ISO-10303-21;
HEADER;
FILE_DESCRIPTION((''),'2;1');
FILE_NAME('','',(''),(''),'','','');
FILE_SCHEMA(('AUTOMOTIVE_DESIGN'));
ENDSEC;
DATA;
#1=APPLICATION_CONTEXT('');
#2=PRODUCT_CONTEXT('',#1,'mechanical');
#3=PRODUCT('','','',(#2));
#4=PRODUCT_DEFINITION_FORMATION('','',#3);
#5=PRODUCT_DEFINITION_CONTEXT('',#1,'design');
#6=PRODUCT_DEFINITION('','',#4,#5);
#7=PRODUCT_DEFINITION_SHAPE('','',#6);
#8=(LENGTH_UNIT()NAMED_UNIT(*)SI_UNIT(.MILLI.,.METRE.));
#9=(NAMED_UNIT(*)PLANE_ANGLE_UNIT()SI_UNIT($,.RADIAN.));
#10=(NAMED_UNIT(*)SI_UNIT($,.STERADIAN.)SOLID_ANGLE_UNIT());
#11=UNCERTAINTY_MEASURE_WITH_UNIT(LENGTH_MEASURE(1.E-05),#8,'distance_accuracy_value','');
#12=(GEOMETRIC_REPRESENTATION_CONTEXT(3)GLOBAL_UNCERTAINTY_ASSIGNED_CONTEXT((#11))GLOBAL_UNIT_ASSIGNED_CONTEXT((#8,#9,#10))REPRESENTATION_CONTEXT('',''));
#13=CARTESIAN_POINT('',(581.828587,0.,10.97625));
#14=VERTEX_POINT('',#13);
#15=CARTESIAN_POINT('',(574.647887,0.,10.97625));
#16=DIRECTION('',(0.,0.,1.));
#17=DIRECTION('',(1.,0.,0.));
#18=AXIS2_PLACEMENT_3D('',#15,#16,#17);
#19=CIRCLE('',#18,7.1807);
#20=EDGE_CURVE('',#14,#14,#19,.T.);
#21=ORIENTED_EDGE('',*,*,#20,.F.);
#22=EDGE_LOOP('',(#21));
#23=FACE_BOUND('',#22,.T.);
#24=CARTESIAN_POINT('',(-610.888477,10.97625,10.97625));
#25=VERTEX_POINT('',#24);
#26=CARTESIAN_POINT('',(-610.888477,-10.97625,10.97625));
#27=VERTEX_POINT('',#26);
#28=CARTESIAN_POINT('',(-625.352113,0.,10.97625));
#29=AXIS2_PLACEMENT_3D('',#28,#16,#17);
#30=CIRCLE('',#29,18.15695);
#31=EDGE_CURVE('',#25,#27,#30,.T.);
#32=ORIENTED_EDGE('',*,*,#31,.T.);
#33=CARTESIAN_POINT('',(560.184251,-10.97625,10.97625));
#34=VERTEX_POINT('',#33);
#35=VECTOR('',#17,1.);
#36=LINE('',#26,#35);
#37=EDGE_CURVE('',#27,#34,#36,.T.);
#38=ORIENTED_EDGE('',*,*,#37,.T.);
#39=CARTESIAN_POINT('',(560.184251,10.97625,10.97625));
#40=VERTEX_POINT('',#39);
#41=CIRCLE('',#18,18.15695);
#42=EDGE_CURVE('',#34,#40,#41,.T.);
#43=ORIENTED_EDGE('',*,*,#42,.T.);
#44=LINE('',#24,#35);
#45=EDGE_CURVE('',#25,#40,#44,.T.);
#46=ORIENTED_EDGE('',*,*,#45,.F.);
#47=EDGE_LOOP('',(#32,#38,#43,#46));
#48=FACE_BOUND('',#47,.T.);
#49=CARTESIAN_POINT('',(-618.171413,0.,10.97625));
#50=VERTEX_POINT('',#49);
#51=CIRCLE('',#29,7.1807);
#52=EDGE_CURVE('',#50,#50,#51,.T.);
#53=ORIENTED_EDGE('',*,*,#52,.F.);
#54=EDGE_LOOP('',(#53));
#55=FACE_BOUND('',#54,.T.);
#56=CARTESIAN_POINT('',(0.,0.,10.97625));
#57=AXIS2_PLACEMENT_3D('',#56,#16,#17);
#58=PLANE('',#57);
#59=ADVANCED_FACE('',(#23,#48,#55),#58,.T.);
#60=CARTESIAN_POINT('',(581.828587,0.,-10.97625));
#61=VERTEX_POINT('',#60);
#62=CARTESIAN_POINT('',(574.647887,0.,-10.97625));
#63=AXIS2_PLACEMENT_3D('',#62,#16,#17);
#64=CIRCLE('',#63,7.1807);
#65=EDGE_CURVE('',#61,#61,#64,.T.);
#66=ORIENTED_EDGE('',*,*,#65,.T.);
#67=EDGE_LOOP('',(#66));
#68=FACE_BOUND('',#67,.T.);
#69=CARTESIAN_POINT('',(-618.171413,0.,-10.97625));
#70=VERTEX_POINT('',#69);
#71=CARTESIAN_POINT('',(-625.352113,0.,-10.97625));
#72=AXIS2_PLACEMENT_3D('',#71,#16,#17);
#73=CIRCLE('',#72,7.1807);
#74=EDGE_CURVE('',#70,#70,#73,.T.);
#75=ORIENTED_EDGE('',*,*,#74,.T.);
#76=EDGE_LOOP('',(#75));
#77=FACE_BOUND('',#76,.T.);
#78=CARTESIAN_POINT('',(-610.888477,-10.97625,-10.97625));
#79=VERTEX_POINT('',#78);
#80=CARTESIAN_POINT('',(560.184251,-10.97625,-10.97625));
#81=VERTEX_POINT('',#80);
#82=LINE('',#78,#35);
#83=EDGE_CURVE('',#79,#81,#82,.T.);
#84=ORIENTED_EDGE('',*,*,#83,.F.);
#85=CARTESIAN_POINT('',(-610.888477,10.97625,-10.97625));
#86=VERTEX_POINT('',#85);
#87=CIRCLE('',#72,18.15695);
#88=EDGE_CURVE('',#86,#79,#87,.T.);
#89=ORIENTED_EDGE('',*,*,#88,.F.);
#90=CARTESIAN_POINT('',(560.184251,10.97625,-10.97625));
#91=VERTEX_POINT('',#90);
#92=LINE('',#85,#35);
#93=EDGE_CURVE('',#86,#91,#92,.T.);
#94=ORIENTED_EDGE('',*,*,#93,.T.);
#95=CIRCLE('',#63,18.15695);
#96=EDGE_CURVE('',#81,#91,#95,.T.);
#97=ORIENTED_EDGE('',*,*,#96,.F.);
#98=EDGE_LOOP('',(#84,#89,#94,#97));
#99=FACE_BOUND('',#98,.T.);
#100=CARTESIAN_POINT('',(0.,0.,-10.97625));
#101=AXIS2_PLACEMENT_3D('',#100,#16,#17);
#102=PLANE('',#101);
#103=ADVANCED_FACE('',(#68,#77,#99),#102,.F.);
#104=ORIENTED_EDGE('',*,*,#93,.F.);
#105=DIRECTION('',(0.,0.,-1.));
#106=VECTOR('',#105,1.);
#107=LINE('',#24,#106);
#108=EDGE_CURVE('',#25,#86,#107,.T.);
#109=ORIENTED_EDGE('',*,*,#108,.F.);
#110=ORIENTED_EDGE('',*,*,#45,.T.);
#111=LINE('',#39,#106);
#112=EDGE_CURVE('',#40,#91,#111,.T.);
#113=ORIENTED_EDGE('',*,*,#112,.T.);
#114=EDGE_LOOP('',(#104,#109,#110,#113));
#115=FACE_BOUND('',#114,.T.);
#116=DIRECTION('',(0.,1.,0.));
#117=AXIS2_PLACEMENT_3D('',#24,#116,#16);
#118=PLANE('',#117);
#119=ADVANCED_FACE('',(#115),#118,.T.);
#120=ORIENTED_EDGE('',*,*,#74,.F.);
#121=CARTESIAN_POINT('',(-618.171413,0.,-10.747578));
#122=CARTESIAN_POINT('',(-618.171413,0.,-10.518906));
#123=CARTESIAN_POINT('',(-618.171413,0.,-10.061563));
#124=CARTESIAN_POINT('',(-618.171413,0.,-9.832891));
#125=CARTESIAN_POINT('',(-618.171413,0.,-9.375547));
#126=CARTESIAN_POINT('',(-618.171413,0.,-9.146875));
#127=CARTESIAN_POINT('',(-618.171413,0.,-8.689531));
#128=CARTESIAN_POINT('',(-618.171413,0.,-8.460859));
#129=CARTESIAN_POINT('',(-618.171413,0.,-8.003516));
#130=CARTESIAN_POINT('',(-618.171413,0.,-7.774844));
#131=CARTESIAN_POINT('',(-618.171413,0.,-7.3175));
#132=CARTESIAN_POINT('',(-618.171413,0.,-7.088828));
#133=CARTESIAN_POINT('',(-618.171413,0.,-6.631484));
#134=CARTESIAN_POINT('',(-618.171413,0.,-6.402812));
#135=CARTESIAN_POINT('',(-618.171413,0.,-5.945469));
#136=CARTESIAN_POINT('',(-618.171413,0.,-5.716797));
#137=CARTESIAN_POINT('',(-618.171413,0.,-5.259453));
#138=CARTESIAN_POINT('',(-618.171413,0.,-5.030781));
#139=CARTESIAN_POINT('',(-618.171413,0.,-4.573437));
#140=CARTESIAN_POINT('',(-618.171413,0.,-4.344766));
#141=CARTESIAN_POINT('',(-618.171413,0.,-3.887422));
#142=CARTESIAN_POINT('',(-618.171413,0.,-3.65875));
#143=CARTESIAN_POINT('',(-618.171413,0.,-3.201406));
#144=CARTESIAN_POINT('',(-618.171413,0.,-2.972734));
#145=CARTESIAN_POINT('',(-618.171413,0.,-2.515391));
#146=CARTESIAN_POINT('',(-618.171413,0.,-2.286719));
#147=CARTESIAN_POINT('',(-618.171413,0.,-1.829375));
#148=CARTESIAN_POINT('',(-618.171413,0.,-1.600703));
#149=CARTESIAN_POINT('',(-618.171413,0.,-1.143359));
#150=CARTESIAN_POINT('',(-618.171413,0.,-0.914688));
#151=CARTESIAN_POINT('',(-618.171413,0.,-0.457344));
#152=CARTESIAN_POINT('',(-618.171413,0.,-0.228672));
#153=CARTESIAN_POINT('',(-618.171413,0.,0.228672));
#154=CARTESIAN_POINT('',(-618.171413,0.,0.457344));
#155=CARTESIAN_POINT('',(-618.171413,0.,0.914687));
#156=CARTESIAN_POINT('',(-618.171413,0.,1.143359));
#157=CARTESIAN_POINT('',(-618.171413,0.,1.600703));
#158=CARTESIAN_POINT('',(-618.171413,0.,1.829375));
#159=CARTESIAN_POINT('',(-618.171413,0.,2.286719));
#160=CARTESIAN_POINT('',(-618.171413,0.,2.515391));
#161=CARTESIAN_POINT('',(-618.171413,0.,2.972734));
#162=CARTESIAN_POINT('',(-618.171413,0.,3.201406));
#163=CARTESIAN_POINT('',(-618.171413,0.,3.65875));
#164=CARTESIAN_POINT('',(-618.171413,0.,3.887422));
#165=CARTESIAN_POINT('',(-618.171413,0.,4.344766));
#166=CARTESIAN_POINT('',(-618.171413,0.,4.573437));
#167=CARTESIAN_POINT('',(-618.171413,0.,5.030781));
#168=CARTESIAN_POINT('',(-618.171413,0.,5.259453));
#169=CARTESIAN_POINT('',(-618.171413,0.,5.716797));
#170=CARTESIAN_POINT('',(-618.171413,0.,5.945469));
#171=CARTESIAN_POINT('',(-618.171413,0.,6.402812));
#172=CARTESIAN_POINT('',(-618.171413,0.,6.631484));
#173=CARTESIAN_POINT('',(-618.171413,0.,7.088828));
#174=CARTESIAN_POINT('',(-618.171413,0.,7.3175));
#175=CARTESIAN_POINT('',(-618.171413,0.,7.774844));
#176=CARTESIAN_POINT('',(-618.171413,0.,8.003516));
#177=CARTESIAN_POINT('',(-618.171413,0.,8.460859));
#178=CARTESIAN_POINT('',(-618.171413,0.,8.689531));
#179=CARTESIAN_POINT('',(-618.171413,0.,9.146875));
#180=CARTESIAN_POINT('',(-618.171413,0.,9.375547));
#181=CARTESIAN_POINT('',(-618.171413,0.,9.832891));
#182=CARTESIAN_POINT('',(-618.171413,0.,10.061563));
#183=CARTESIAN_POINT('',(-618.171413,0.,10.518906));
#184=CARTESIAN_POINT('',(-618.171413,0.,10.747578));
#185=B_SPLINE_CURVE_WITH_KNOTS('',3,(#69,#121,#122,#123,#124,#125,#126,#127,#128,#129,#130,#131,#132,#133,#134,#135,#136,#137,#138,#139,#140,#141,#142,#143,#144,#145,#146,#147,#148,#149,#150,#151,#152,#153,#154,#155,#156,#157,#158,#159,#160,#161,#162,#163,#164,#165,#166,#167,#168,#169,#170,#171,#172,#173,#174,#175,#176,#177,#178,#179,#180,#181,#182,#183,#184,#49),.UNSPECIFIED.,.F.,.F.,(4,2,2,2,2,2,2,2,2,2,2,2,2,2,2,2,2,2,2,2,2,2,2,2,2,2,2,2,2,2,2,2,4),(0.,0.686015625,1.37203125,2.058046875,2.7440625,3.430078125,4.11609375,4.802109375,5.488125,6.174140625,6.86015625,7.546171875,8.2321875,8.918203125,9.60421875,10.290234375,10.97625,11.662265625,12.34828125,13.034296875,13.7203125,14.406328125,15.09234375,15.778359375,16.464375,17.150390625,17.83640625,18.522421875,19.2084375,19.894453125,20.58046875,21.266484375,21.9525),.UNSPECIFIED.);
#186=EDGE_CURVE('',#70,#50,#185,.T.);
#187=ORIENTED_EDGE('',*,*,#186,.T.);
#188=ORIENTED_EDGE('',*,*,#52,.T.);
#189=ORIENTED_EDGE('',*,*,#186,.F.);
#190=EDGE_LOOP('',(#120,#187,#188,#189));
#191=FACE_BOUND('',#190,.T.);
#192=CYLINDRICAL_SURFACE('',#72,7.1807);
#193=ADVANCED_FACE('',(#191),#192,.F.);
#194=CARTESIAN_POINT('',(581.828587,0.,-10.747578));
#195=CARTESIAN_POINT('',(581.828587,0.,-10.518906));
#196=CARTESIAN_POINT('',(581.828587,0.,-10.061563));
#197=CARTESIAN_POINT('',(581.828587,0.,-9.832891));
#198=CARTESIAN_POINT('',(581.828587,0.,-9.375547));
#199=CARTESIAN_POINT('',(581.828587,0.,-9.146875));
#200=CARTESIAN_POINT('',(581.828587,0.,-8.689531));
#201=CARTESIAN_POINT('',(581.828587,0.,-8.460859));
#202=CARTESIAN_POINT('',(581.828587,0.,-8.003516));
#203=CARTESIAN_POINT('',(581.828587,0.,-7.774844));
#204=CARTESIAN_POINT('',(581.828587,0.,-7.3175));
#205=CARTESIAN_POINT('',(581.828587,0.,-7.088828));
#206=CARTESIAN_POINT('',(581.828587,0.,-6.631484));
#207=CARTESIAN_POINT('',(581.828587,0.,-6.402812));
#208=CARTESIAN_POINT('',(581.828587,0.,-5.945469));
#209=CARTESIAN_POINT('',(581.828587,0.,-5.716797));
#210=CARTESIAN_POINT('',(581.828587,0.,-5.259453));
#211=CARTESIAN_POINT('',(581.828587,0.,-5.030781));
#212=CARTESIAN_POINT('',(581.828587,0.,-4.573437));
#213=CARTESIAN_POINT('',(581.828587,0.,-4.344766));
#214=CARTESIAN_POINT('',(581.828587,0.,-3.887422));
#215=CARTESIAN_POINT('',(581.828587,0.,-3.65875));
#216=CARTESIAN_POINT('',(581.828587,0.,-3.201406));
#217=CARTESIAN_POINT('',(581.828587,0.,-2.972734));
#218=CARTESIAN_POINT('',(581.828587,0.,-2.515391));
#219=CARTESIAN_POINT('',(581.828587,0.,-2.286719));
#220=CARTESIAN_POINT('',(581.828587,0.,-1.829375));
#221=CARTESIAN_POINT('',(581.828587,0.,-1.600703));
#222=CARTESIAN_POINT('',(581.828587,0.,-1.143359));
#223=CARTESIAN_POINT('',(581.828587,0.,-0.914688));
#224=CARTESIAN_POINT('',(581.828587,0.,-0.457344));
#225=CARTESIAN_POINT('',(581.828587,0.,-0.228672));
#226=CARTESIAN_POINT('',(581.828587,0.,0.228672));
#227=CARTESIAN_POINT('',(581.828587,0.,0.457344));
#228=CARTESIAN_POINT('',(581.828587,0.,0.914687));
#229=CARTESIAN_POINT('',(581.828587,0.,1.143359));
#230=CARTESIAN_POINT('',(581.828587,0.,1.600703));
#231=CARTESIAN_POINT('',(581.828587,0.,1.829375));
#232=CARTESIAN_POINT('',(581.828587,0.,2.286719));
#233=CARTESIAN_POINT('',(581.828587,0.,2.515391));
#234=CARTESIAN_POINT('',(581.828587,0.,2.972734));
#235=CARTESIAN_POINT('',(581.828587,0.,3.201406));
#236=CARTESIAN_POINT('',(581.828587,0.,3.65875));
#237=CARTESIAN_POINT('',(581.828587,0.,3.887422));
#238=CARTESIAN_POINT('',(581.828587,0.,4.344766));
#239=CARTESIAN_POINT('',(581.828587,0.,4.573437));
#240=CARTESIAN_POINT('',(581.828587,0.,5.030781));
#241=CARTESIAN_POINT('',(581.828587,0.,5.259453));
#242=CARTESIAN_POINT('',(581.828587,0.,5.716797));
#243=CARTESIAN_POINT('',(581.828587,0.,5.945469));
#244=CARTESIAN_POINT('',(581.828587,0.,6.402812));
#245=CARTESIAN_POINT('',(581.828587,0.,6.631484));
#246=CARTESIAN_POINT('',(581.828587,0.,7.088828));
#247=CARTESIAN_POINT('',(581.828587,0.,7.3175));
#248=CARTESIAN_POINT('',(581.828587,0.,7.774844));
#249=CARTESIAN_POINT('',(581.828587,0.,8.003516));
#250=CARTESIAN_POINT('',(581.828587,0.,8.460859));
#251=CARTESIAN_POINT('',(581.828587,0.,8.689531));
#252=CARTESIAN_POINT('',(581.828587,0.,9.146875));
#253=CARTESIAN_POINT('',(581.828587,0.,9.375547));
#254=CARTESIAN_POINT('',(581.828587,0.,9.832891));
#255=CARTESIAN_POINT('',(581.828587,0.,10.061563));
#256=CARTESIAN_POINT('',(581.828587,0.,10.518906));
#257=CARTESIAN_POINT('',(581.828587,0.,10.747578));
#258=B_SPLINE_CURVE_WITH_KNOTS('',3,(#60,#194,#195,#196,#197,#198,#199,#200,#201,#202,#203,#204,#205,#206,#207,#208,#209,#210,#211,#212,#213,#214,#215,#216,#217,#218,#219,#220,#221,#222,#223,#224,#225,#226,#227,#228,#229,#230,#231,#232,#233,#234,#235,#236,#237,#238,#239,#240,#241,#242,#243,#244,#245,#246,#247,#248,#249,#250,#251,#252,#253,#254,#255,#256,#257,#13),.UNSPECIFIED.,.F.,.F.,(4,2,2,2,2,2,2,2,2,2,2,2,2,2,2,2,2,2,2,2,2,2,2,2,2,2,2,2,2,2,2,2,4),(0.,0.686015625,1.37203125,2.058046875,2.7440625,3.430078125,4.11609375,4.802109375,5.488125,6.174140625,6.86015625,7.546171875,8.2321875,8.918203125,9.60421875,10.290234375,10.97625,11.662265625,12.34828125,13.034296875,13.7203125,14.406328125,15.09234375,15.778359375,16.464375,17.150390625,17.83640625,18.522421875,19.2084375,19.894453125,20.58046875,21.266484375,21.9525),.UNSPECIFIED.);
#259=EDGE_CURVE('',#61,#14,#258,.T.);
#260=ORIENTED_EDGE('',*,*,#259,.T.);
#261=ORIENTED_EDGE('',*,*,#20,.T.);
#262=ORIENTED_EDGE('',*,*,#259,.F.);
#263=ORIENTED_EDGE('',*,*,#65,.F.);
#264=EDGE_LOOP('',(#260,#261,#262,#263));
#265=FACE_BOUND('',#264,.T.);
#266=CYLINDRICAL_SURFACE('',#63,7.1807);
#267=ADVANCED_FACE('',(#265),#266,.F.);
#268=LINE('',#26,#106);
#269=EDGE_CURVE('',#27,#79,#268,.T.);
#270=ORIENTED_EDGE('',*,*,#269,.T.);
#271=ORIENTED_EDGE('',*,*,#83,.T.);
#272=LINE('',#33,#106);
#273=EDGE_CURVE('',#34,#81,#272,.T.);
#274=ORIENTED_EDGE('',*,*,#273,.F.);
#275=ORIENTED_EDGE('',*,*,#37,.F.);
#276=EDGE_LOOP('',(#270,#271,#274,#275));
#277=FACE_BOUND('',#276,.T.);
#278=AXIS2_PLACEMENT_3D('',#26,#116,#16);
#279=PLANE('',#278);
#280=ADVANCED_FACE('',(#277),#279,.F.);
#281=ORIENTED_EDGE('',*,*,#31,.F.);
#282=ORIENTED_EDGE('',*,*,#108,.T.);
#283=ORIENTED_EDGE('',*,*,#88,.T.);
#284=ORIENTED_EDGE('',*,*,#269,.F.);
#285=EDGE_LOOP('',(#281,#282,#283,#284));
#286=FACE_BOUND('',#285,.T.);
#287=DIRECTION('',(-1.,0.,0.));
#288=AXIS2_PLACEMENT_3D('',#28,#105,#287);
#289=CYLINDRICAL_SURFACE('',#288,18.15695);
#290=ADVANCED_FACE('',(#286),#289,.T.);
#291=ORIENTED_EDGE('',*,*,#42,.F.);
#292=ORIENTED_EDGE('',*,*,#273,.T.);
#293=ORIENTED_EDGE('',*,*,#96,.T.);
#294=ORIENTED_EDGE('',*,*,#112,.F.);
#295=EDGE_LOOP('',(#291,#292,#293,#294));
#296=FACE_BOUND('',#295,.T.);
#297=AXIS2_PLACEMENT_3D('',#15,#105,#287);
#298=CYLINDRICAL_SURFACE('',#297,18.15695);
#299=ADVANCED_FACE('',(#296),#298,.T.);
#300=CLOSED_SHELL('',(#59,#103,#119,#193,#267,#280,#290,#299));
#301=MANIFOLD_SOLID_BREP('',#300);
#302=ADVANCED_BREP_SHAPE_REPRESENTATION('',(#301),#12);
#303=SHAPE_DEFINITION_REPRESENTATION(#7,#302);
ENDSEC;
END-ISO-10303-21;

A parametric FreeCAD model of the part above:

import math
import FreeCAD as App
import Part
import Sketcher

V = App.Vector

doc = App.newDocument("Part")
body = doc.addObject("PartDesign::Body", "Body")

# Sketch on XY plane
sketch1 = body.newObject("Sketcher::SketchObject", "Sketch")
sketch1.AttachmentSupport = (doc.getObject("XY_Plane"), [""])
sketch1.MapMode = "FlatFace"
sketch1.addGeometry([
    Part.LineSegment(V(-611, -11, 0), V(560, -11, 0)),
    Part.ArcOfCircle(Part.Circle(V(575, 0, 0), V(0, 0, 1), 18), math.radians(-143), math.radians(143)),
    Part.LineSegment(V(560, 11, 0), V(-611, 11, 0)),
    Part.ArcOfCircle(Part.Circle(V(-625, 0, 0), V(0, 0, 1), 18), math.radians(37), math.radians(323)),
], False)
sketch1.addConstraint([
    Sketcher.Constraint("Coincident", 0, 2, 1, 1),
    Sketcher.Constraint("Coincident", 1, 2, 2, 1),
    Sketcher.Constraint("Coincident", 2, 2, 3, 1),
    Sketcher.Constraint("Coincident", 3, 2, 0, 1),
    Sketcher.Constraint("Horizontal", 0),
    Sketcher.Constraint("Horizontal", 2),
    Sketcher.Constraint("Equal", 1, 3),
    Sketcher.Constraint("Symmetric", 0, 2, 1, 2, -1),
    Sketcher.Constraint("PointOnObject", 3, 3, -1),
    Sketcher.Constraint("DistanceX", 3, 3, 1, 3, 1200.0),
    Sketcher.Constraint("Radius", 1, 18.15695),
    Sketcher.Constraint("DistanceY", 0, 2, 1, 2, 21.9525),
    Sketcher.Constraint("DistanceX", -1, 1, 0, 2, 560.184251),
])
pad1 = body.newObject("PartDesign::Pad", "Pad")
pad1.Profile = sketch1
pad1.Length = 21.9525
pad1.Midplane = True

# Sketch on XY plane
sketch2 = body.newObject("Sketcher::SketchObject", "Sketch001")
sketch2.AttachmentSupport = (doc.getObject("XY_Plane"), [""])
sketch2.MapMode = "FlatFace"
sketch2.AttachmentOffset = App.Placement(V(0, 0, 10.97625), App.Rotation())
sketch2.addGeometry([
    Part.Circle(V(-625, 0, 0), V(0, 0, 1), 7),
    Part.Circle(V(575, 0, 0), V(0, 0, 1), 7),
], False)
sketch2.addConstraint([
    Sketcher.Constraint("Equal", 0, 1),
    Sketcher.Constraint("PointOnObject", 0, 3, -1),
    Sketcher.Constraint("PointOnObject", 1, 3, -1),
    Sketcher.Constraint("DistanceX", 0, 3, 1, 3, 1200.0),
    Sketcher.Constraint("Diameter", 0, 14.3614),
    Sketcher.Constraint("DistanceX", 0, 3, -1, 1, 625.352113),
])
pocket1 = body.newObject("PartDesign::Pocket", "Pocket")
pocket1.Profile = sketch2
pocket1.Type = "ThroughAll"

doc.recompute()
